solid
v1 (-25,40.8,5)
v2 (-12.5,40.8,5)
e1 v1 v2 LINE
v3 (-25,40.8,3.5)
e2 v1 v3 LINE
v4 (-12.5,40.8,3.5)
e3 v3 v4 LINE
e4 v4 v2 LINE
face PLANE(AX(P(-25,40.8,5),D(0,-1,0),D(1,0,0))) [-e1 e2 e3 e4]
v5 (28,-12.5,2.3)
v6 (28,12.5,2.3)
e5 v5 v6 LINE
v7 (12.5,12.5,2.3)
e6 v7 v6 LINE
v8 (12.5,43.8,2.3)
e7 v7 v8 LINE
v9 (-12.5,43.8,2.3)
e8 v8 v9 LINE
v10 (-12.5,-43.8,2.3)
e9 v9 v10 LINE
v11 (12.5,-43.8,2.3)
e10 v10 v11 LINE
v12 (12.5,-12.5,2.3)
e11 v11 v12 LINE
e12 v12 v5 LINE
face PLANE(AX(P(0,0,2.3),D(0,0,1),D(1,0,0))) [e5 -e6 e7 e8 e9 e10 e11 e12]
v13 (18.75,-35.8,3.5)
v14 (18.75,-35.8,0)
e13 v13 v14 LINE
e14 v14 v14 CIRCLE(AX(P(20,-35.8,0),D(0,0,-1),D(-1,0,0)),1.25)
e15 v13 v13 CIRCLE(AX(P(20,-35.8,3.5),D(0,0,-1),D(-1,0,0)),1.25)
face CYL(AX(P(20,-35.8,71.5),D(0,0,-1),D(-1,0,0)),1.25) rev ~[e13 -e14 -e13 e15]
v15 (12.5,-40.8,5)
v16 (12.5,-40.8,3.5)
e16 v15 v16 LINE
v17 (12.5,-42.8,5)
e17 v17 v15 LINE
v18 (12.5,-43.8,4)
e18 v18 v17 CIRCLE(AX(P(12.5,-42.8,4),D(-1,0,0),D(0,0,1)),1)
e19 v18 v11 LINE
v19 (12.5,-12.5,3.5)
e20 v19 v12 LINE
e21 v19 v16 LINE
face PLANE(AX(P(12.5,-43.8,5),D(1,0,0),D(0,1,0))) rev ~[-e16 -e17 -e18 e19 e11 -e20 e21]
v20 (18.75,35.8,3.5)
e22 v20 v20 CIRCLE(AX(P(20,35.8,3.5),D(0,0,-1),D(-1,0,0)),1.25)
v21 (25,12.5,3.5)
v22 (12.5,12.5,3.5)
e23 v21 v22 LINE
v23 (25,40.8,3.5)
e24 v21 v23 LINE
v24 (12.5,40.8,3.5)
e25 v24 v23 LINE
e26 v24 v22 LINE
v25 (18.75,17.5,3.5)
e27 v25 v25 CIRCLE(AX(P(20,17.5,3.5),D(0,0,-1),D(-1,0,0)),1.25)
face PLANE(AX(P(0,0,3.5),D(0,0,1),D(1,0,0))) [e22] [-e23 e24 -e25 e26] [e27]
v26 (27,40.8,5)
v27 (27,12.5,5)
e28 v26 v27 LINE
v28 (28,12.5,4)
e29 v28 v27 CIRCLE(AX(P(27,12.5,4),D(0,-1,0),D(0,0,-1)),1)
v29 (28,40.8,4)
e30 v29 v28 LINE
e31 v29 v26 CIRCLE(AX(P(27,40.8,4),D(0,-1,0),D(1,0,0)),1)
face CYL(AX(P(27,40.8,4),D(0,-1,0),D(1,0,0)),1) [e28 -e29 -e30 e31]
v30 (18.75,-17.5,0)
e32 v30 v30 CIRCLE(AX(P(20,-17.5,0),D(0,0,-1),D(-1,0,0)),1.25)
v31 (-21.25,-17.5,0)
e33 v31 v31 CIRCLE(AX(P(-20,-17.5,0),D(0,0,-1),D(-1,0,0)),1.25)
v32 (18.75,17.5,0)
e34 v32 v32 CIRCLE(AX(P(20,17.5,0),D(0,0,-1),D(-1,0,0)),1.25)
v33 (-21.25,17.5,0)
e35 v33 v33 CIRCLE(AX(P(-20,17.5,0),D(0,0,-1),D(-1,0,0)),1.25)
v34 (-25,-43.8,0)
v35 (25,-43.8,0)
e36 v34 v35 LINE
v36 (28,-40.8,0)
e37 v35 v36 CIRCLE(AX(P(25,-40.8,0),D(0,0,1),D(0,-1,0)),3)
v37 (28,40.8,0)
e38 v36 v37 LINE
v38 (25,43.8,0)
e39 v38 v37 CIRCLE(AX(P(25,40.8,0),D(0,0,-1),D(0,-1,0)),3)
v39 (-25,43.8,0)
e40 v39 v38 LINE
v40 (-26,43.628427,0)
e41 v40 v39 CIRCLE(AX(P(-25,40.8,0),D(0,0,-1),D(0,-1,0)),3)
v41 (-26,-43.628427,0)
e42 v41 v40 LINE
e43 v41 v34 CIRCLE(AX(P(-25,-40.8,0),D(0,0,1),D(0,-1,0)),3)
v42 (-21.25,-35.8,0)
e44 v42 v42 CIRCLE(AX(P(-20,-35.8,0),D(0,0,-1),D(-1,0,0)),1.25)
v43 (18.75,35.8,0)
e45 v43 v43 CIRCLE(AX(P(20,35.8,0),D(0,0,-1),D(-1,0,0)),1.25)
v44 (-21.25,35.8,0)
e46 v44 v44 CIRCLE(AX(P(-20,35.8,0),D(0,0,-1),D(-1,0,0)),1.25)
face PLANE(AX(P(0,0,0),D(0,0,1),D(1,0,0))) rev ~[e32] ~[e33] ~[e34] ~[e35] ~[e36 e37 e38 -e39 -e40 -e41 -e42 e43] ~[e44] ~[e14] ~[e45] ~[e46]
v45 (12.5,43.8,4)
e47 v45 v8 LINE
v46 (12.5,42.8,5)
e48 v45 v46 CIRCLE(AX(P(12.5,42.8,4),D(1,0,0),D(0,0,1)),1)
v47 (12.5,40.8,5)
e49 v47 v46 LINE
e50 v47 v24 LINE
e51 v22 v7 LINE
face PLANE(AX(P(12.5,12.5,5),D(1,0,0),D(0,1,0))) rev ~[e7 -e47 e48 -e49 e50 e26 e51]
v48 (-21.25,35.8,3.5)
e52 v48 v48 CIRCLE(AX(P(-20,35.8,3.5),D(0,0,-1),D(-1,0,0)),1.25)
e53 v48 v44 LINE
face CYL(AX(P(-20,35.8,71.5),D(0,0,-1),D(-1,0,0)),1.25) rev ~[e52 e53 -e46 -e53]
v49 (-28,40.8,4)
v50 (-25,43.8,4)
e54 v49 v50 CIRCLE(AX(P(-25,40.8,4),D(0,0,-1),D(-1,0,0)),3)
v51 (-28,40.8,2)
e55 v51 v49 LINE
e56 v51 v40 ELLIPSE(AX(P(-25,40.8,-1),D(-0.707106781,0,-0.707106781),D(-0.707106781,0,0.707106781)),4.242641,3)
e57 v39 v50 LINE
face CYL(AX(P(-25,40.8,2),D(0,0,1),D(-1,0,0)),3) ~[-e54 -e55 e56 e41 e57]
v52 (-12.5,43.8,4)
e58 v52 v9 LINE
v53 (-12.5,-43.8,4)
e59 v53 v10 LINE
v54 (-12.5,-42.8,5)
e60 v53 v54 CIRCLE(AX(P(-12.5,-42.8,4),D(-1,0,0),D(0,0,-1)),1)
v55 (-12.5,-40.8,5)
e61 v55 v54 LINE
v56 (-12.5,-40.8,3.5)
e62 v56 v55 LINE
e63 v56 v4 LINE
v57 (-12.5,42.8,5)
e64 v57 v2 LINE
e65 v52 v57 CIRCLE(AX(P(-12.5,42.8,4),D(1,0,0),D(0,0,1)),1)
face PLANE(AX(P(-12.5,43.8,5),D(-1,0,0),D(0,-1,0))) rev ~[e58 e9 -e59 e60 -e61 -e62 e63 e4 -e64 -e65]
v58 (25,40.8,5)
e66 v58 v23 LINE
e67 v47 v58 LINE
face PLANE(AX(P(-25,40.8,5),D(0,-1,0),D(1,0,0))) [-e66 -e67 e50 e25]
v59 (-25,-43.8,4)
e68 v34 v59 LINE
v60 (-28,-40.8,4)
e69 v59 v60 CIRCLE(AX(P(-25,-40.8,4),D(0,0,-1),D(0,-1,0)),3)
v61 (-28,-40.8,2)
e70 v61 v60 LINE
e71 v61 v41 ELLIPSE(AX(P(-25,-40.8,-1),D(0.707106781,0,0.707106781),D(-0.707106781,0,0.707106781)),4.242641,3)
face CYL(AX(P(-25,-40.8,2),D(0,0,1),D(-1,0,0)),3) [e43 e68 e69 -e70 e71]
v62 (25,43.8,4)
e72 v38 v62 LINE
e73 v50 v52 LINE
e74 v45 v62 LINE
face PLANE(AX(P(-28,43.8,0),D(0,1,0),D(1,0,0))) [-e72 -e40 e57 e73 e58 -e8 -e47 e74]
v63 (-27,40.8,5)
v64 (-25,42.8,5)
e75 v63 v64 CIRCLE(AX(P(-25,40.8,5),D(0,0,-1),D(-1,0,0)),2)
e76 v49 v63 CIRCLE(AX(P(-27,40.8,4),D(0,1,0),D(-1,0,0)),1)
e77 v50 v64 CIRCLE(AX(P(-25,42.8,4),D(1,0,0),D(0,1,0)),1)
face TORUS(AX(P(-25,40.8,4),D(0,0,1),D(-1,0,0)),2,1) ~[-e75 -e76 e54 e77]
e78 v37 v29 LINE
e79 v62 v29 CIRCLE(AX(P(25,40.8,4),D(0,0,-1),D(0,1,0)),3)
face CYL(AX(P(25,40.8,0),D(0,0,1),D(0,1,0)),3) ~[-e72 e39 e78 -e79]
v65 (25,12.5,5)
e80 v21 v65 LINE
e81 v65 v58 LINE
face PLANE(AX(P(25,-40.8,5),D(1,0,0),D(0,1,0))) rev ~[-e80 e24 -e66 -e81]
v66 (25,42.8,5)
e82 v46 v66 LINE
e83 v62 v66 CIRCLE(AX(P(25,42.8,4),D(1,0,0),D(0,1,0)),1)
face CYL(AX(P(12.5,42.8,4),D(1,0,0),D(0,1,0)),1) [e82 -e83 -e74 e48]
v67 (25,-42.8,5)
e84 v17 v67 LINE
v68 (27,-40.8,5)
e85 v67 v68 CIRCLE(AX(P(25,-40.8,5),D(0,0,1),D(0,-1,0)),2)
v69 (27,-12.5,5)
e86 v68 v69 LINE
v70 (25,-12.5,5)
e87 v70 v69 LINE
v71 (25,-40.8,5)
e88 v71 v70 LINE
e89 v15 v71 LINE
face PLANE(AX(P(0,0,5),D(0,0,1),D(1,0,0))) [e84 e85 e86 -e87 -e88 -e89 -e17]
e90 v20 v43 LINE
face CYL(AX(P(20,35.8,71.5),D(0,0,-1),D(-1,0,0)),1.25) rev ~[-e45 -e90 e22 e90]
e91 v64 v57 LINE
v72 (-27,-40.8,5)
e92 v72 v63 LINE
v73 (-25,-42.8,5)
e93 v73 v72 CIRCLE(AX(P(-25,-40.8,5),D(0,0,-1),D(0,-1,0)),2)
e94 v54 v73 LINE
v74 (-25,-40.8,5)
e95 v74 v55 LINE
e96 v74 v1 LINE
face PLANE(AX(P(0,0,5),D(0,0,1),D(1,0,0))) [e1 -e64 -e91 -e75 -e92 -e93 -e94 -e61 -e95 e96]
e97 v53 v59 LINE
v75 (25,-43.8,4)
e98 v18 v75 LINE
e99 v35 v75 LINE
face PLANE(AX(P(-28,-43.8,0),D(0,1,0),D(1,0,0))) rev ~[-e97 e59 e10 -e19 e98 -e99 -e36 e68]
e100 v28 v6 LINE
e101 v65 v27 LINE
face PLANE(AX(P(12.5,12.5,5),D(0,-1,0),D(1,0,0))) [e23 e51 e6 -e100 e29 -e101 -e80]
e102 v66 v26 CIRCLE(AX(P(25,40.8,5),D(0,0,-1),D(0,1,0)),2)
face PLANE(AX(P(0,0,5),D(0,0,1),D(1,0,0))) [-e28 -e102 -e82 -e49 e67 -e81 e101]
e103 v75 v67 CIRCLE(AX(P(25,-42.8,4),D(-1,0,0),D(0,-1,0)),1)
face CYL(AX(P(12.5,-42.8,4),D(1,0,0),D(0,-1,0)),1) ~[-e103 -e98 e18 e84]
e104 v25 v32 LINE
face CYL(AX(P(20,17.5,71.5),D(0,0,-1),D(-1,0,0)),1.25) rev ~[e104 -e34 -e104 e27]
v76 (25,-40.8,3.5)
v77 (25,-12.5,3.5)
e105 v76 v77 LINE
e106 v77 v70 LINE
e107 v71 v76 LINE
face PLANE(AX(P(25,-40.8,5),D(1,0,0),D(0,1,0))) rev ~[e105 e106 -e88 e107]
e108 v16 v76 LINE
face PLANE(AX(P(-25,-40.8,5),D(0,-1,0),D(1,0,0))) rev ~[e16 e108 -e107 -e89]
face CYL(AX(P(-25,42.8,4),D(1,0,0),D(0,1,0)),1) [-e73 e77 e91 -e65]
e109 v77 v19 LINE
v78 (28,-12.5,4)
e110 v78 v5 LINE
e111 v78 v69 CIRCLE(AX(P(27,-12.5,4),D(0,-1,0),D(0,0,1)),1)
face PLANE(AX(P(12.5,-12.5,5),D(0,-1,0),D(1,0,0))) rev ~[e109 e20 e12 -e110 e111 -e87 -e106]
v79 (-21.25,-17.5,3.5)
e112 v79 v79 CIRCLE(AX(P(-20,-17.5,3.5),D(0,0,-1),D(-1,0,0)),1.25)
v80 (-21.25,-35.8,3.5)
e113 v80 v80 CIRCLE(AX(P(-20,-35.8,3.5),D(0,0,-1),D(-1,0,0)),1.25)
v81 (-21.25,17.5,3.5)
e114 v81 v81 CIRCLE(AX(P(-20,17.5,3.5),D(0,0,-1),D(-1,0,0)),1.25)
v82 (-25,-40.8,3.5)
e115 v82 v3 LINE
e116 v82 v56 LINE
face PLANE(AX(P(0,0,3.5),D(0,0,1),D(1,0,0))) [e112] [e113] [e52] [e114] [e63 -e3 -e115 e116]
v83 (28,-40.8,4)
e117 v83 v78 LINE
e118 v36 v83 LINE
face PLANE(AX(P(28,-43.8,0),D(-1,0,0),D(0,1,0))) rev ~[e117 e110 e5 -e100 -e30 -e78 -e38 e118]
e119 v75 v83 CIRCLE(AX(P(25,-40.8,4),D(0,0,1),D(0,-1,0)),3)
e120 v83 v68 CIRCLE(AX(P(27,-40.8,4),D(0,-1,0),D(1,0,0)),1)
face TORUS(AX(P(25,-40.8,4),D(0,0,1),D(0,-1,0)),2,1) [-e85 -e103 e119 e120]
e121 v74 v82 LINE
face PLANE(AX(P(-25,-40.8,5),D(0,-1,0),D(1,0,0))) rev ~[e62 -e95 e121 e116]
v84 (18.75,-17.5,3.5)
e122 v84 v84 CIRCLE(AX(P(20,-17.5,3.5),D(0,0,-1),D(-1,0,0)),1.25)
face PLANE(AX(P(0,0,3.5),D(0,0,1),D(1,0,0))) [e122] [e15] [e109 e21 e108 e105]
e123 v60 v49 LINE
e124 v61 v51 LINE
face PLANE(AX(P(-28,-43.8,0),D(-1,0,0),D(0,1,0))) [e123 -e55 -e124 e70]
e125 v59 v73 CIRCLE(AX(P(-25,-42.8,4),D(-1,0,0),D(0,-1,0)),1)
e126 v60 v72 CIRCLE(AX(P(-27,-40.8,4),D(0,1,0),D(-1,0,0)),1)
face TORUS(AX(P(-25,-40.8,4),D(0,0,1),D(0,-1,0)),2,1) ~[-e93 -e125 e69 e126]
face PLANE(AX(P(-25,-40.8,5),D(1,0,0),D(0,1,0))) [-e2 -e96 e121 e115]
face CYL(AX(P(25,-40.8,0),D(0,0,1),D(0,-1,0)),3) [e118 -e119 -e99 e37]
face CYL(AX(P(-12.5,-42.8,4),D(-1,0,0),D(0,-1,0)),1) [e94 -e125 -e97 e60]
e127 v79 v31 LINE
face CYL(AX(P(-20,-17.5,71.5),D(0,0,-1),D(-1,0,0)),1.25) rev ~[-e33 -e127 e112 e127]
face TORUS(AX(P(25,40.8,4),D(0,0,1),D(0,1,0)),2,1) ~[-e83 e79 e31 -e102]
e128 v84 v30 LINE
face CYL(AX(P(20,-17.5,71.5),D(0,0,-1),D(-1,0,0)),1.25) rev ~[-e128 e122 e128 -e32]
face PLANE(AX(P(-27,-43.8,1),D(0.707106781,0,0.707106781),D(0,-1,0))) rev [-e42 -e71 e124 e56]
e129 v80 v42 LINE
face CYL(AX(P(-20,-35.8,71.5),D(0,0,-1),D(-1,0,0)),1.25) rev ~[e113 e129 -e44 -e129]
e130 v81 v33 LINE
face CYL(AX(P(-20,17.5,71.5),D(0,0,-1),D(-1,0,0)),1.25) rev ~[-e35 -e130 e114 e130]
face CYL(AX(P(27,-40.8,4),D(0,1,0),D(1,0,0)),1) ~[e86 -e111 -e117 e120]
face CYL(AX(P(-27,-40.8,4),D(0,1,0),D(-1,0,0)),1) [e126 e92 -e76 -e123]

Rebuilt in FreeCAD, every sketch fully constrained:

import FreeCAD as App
import Part
import Sketcher

V = App.Vector


def edges_at(feature, points):
    """Names of the edges that pass closest to the given points."""
    edges = feature.Shape.Edges
    near = lambda p: min(range(len(edges)), key=lambda i: edges[i].distToShape(Part.Vertex(*p))[0])
    return sorted({f"Edge{near(p) + 1}" for p in points})

doc = App.newDocument("Part")
body = doc.addObject("PartDesign::Body", "Body")

# Sketch on XY plane
sketch1 = body.newObject("Sketcher::SketchObject", "Sketch")
sketch1.AttachmentSupport = (doc.getObject("XY_Plane"), [""])
sketch1.MapMode = "FlatFace"
sketch1.addGeometry(Part.LineSegment(V(-28, 44, 0), V(-28, -44, 0)), False)
sketch1.addGeometry(Part.LineSegment(V(-28, -44, 0), V(28, -44, 0)), False)
sketch1.addGeometry(Part.LineSegment(V(28, -44, 0), V(28, 44, 0)), False)
sketch1.addGeometry(Part.LineSegment(V(28, 44, 0), V(-28, 44, 0)), False)
sketch1.addConstraint(Sketcher.Constraint("Coincident", 0, 2, 1, 1))
sketch1.addConstraint(Sketcher.Constraint("Coincident", 1, 2, 2, 1))
sketch1.addConstraint(Sketcher.Constraint("Coincident", 2, 2, 3, 1))
sketch1.addConstraint(Sketcher.Constraint("Coincident", 3, 2, 0, 1))
sketch1.addConstraint(Sketcher.Constraint("Vertical", 0))
sketch1.addConstraint(Sketcher.Constraint("Horizontal", 1))
sketch1.addConstraint(Sketcher.Constraint("Vertical", 2))
sketch1.addConstraint(Sketcher.Constraint("Horizontal", 3))
sketch1.addConstraint(Sketcher.Constraint("Symmetric", 0, 2, 2, 2, -1, 1))
sketch1.addConstraint(Sketcher.Constraint("DistanceX", 1, 1, 1, 2, 56.0))
sketch1.addConstraint(Sketcher.Constraint("DistanceY", 0, 2, 0, 1, 87.6))
pad1 = body.newObject("PartDesign::Pad", "Pad")
pad1.Profile = sketch1
pad1.Length = 5
doc.recompute()

chamfer = body.newObject("PartDesign::Chamfer", "Chamfer")
chamfer.Base = (pad1, edges_at(pad1, [(-28, 0, 0)]))
chamfer.Size = 2

# Sketch on XY plane
sketch2 = body.newObject("Sketcher::SketchObject", "Sketch001")
sketch2.AttachmentSupport = (doc.getObject("XY_Plane"), [""])
sketch2.MapMode = "FlatFace"
sketch2.AttachmentOffset = App.Placement(V(0, 0, 5), App.Rotation())
sketch2.addGeometry(Part.LineSegment(V(12, 44, 0), V(-12, 44, 0)), False)
sketch2.addGeometry(Part.LineSegment(V(-12, 44, 0), V(-12, -44, 0)), False)
sketch2.addGeometry(Part.LineSegment(V(-12, -44, 0), V(12, -44, 0)), False)
sketch2.addGeometry(Part.LineSegment(V(12, -44, 0), V(12, -12, 0)), False)
sketch2.addGeometry(Part.LineSegment(V(12, -12, 0), V(28, -12, 0)), False)
sketch2.addGeometry(Part.LineSegment(V(28, -12, 0), V(28, 12, 0)), False)
sketch2.addGeometry(Part.LineSegment(V(28, 12, 0), V(12, 12, 0)), False)
sketch2.addGeometry(Part.LineSegment(V(12, 12, 0), V(12, 44, 0)), False)
sketch2.addConstraint(Sketcher.Constraint("Coincident", 0, 2, 1, 1))
sketch2.addConstraint(Sketcher.Constraint("Coincident", 1, 2, 2, 1))
sketch2.addConstraint(Sketcher.Constraint("Coincident", 2, 2, 3, 1))
sketch2.addConstraint(Sketcher.Constraint("Coincident", 3, 2, 4, 1))
sketch2.addConstraint(Sketcher.Constraint("Coincident", 4, 2, 5, 1))
sketch2.addConstraint(Sketcher.Constraint("Coincident", 5, 2, 6, 1))
sketch2.addConstraint(Sketcher.Constraint("Coincident", 6, 2, 7, 1))
sketch2.addConstraint(Sketcher.Constraint("Coincident", 7, 2, 0, 1))
sketch2.addConstraint(Sketcher.Constraint("Horizontal", 0))
sketch2.addConstraint(Sketcher.Constraint("Vertical", 1))
sketch2.addConstraint(Sketcher.Constraint("Horizontal", 2))
sketch2.addConstraint(Sketcher.Constraint("Vertical", 3))
sketch2.addConstraint(Sketcher.Constraint("Horizontal", 4))
sketch2.addConstraint(Sketcher.Constraint("Vertical", 5))
sketch2.addConstraint(Sketcher.Constraint("Horizontal", 6))
sketch2.addConstraint(Sketcher.Constraint("Vertical", 7))
sketch2.addConstraint(Sketcher.Constraint("Symmetric", 0, 2, 2, 2, -1, 1))
sketch2.addConstraint(Sketcher.Constraint("Symmetric", 3, 2, 6, 2, -1))
sketch2.addConstraint(Sketcher.Constraint("Equal", 2, 5))
sketch2.addConstraint(Sketcher.Constraint("DistanceX", 0, 2, 0, 1, 25.0))
sketch2.addConstraint(Sketcher.Constraint("DistanceX", 4, 1, 4, 2, 15.5))
sketch2.addConstraint(Sketcher.Constraint("DistanceY", 1, 2, 1, 1, 87.6))
pocket1 = body.newObject("PartDesign::Pocket", "Pocket")
pocket1.Profile = sketch2
pocket1.Length = 2.7
doc.recompute()

fillet = body.newObject("PartDesign::Fillet", "Fillet")
fillet.Base = (pocket1, edges_at(pocket1, [
    (-28, 43.8, 3.5),
    (-28, -43.8, 3.5),
    (28, -43.8, 2.5),
    (28, 43.8, 2.5),
]))
fillet.Radius = 3

# Sketch on XY plane
sketch3 = body.newObject("Sketcher::SketchObject", "Sketch002")
sketch3.AttachmentSupport = (doc.getObject("XY_Plane"), [""])
sketch3.MapMode = "FlatFace"
sketch3.AttachmentOffset = App.Placement(V(0, 0, 5), App.Rotation())
sketch3.addGeometry(Part.LineSegment(V(-25, 41, 0), V(-25, -41, 0)), False)
sketch3.addGeometry(Part.LineSegment(V(-25, -41, 0), V(25, -41, 0)), False)
sketch3.addGeometry(Part.LineSegment(V(25, -41, 0), V(25, 41, 0)), False)
sketch3.addGeometry(Part.LineSegment(V(25, 41, 0), V(-25, 41, 0)), False)
sketch3.addConstraint(Sketcher.Constraint("Coincident", 0, 2, 1, 1))
sketch3.addConstraint(Sketcher.Constraint("Coincident", 1, 2, 2, 1))
sketch3.addConstraint(Sketcher.Constraint("Coincident", 2, 2, 3, 1))
sketch3.addConstraint(Sketcher.Constraint("Coincident", 3, 2, 0, 1))
sketch3.addConstraint(Sketcher.Constraint("Vertical", 0))
sketch3.addConstraint(Sketcher.Constraint("Horizontal", 1))
sketch3.addConstraint(Sketcher.Constraint("Vertical", 2))
sketch3.addConstraint(Sketcher.Constraint("Horizontal", 3))
sketch3.addConstraint(Sketcher.Constraint("Symmetric", 0, 2, 2, 2, -1, 1))
sketch3.addConstraint(Sketcher.Constraint("DistanceX", 1, 1, 1, 2, 50.0))
sketch3.addConstraint(Sketcher.Constraint("DistanceY", 0, 2, 0, 1, 81.6))
pocket2 = body.newObject("PartDesign::Pocket", "Pocket001")
pocket2.Profile = sketch3
pocket2.Length = 1.5
doc.recompute()

fillet2 = body.newObject("PartDesign::Fillet", "Fillet001")
fillet2.Base = (pocket2, edges_at(pocket2, [
    (-27.121, 42.921, 5),
    (27.121, 42.921, 5),
    (18.75, 43.8, 5),
    (-18.75, 43.8, 5),
    (-28, 0, 5),
    (-18.75, -43.8, 5),
    (27.121, -42.921, 5),
]))
fillet2.Radius = 1

# Sketch on XY plane
sketch4 = body.newObject("Sketcher::SketchObject", "Sketch003")
sketch4.AttachmentSupport = (doc.getObject("XY_Plane"), [""])
sketch4.MapMode = "FlatFace"
sketch4.AttachmentOffset = App.Placement(V(0, 0, 3.5), App.Rotation())
sketch4.addGeometry(Part.Circle(V(-20, 35.8, 0), V(0, 0, 1), 1.2), False)
sketch4.addGeometry(Part.Circle(V(20, 35.8, 0), V(0, 0, 1), 1.2), False)
sketch4.addGeometry(Part.Circle(V(20, 17.5, 0), V(0, 0, 1), 1.2), False)
sketch4.addGeometry(Part.Circle(V(20, -17.5, 0), V(0, 0, 1), 1.2), False)
sketch4.addGeometry(Part.Circle(V(20, -35.8, 0), V(0, 0, 1), 1.2), False)
sketch4.addGeometry(Part.Circle(V(-20, -35.8, 0), V(0, 0, 1), 1.2), False)
sketch4.addGeometry(Part.Circle(V(-20, 17.5, 0), V(0, 0, 1), 1.2), False)
sketch4.addGeometry(Part.Circle(V(-20, -17.5, 0), V(0, 0, 1), 1.2), False)
sketch4.addConstraint(Sketcher.Constraint("Equal", 0, 1))
sketch4.addConstraint(Sketcher.Constraint("Equal", 1, 2))
sketch4.addConstraint(Sketcher.Constraint("Equal", 2, 3))
sketch4.addConstraint(Sketcher.Constraint("Equal", 3, 4))
sketch4.addConstraint(Sketcher.Constraint("Equal", 4, 5))
sketch4.addConstraint(Sketcher.Constraint("Equal", 5, 6))
sketch4.addConstraint(Sketcher.Constraint("Equal", 6, 7))
sketch4.addConstraint(Sketcher.Constraint("Symmetric", 0, 3, 4, 3, -1, 1))
sketch4.addConstraint(Sketcher.Constraint("Symmetric", 1, 3, 5, 3, -1, 1))
sketch4.addConstraint(Sketcher.Constraint("Symmetric", 3, 3, 6, 3, -1, 1))
sketch4.addConstraint(Sketcher.Constraint("Symmetric", 2, 3, 7, 3, -1, 1))
sketch4.addConstraint(Sketcher.Constraint("Symmetric", 0, 3, 1, 3, -2))
sketch4.addConstraint(Sketcher.Constraint("Symmetric", 2, 3, 6, 3, -2))
sketch4.addConstraint(Sketcher.Constraint("Vertical", 1, 3, 2, 3))
sketch4.addConstraint(Sketcher.Constraint("Diameter", 0, 2.5))
sketch4.addConstraint(Sketcher.Constraint("DistanceX", 0, 3, -1, 1, 20.0))
sketch4.addConstraint(Sketcher.Constraint("DistanceY", 3, 3, 2, 3, 35.0))
sketch4.addConstraint(Sketcher.Constraint("DistanceY", -1, 1, 0, 3, 35.8))
doc.recompute()
hole = body.newObject("PartDesign::Hole", "Hole")
hole.Profile = sketch4
hole.ThreadType = "None"
hole.Diameter = 2.5
hole.DepthType = "Dimension"
hole.Depth = 68
hole.DrillPoint = "Angled"
hole.DrillPointAngle = 118

doc.recompute()
